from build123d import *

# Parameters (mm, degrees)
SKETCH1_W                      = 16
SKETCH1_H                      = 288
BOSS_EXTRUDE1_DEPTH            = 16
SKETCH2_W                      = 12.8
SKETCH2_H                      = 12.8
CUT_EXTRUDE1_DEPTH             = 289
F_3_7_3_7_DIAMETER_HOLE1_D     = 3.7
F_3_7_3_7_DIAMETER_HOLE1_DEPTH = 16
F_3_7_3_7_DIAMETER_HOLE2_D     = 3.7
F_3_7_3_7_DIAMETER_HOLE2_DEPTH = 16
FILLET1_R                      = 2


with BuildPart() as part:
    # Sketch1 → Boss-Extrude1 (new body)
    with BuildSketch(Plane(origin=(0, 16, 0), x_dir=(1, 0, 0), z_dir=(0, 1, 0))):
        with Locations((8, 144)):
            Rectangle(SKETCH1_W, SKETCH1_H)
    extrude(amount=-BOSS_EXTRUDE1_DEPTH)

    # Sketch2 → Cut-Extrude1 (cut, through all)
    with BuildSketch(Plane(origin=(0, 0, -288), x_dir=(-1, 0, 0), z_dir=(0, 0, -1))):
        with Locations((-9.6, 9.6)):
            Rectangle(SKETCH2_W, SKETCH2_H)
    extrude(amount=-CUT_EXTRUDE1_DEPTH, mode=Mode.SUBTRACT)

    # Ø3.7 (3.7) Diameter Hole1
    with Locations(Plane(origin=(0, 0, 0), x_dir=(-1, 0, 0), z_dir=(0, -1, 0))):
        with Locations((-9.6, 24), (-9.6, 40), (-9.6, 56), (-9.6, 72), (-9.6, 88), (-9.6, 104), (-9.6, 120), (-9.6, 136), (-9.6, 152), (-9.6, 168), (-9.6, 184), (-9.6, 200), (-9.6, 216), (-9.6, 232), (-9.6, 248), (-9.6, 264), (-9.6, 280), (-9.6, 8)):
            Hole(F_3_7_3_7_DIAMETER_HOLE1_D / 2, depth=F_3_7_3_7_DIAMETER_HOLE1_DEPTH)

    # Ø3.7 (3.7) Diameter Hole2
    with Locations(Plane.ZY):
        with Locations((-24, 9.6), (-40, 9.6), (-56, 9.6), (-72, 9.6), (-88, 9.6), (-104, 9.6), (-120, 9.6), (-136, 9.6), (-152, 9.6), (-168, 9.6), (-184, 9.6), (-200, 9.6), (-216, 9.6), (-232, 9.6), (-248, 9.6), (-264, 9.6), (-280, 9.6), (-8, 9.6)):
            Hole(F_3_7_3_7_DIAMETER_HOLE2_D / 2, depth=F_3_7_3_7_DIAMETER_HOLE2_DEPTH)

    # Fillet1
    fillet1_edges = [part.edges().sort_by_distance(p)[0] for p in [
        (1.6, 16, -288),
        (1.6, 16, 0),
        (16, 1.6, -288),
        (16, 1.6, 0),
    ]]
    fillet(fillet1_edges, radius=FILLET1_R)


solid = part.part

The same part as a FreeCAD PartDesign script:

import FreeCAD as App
import Part
import Sketcher
from FreeCAD import Vector


def edges_at(feature, points):
    """Names of the edges that pass closest to the given points."""
    edges = feature.Shape.Edges
    near = lambda p: min(range(len(edges)), key=lambda i: edges[i].distToShape(Part.Vertex(*p))[0])
    return sorted({f"Edge{near(p) + 1}" for p in points})

doc = App.newDocument("Part")
params = doc.addObject("Spreadsheet::Sheet", "Params")
for row, (alias, value) in enumerate([
    ("sketch1_width", "16 mm"),
    ("sketch1_height", "288 mm"),
    ("pad1_length", "16 mm"),
    ("sketch2_width", "12.8 mm"),
    ("sketch3_diameter", "3.7 mm"),
    ("hole_diameter", "3.7 mm"),
    ("hole_depth", "16 mm"),
    ("sketch4_diameter", "3.7 mm"),
    ("hole2_diameter", "3.7 mm"),
    ("hole2_depth", "16 mm"),
    ("fillet_radius", "2 mm"),
], start=1):
    params.set(f"A{row}", alias)
    params.set(f"B{row}", "=" + value)
    params.setAlias(f"B{row}", alias)

body = doc.addObject("PartDesign::Body", "Body")

sketch1 = body.newObject("Sketcher::SketchObject", "Sketch")
sketch1.AttachmentSupport = (doc.getObject("XZ_Plane"), [""])
sketch1.MapMode = "FlatFace"
sketch1.AttachmentOffset = App.Placement(Vector(0, 0, -16), App.Rotation())
sketch1.addGeometry([
    Part.LineSegment(Vector(0, -288, 0), Vector(0, 0, 0)),
    Part.LineSegment(Vector(0, 0, 0), Vector(16, 0, 0)),
    Part.LineSegment(Vector(16, 0, 0), Vector(16, -288, 0)),
    Part.LineSegment(Vector(16, -288, 0), Vector(0, -288, 0)),
], False)
sketch1.addConstraint([
    Sketcher.Constraint("Coincident", 0, 2, 1, 1),
    Sketcher.Constraint("Coincident", 1, 2, 2, 1),
    Sketcher.Constraint("Coincident", 2, 2, 3, 1),
    Sketcher.Constraint("Coincident", 3, 2, 0, 1),
    Sketcher.Constraint("Vertical", 0),
    Sketcher.Constraint("Horizontal", 1),
    Sketcher.Constraint("Vertical", 2),
    Sketcher.Constraint("Horizontal", 3),
    Sketcher.Constraint("Coincident", 0, 2, -1, 1),
    Sketcher.Constraint("DistanceX", 1, 1, 1, 2, 16.0),
    Sketcher.Constraint("DistanceY", 0, 1, 0, 2, 288.0),
])
sketch1.setExpression("Constraints[9]", "Params.sketch1_width")
sketch1.setExpression("Constraints[10]", "Params.sketch1_height")
pad1 = body.newObject("PartDesign::Pad", "Pad")
pad1.Profile = sketch1
pad1.setExpression("Length", "Params.pad1_length")

sketch2 = body.newObject("Sketcher::SketchObject", "Sketch001")
sketch2.AttachmentSupport = (doc.getObject("XY_Plane"), [""])
sketch2.MapMode = "FlatFace"
sketch2.AttachmentOffset = App.Placement(Vector(0, 0, -288), App.Rotation())
sketch2.addGeometry([
    Part.LineSegment(Vector(16, 16, 0), Vector(16, 3, 0)),
    Part.LineSegment(Vector(16, 3, 0), Vector(3, 3, 0)),
    Part.LineSegment(Vector(3, 3, 0), Vector(3, 16, 0)),
    Part.LineSegment(Vector(3, 16, 0), Vector(16, 16, 0)),
], False)
sketch2.addConstraint([
    Sketcher.Constraint("Coincident", 0, 2, 1, 1),
    Sketcher.Constraint("Coincident", 1, 2, 2, 1),
    Sketcher.Constraint("Coincident", 2, 2, 3, 1),
    Sketcher.Constraint("Coincident", 3, 2, 0, 1),
    Sketcher.Constraint("Vertical", 0),
    Sketcher.Constraint("Horizontal", 1),
    Sketcher.Constraint("Vertical", 2),
    Sketcher.Constraint("Horizontal", 3),
    Sketcher.Constraint("Equal", 3, 0),
    Sketcher.Constraint("DistanceX", 1, 2, 1, 1, 12.8),
    Sketcher.Constraint("DistanceX", -1, 1, 0, 2, 16.0),
    Sketcher.Constraint("DistanceY", -1, 1, 2, 2, 16.0),
])
sketch2.setExpression("Constraints[9]", "Params.sketch2_width")
pocket1 = body.newObject("PartDesign::Pocket", "Pocket")
pocket1.Profile = sketch2
pocket1.Type = "ThroughAll"
pocket1.Reversed = True

sketch3 = body.newObject("Sketcher::SketchObject", "Sketch002")
sketch3.AttachmentSupport = (doc.getObject("XZ_Plane"), [""])
sketch3.MapMode = "FlatFace"
sketch3.addGeometry([
    Part.Circle(Vector(9.6, -24, 0), Vector(0, 0, 1), 1.9),
    Part.Circle(Vector(9.6, -40, 0), Vector(0, 0, 1), 1.9),
    Part.Circle(Vector(9.6, -56, 0), Vector(0, 0, 1), 1.9),
    Part.Circle(Vector(9.6, -72, 0), Vector(0, 0, 1), 1.9),
    Part.Circle(Vector(9.6, -88, 0), Vector(0, 0, 1), 1.9),
    Part.Circle(Vector(9.6, -104, 0), Vector(0, 0, 1), 1.9),
    Part.Circle(Vector(9.6, -120, 0), Vector(0, 0, 1), 1.9),
    Part.Circle(Vector(9.6, -136, 0), Vector(0, 0, 1), 1.9),
    Part.Circle(Vector(9.6, -152, 0), Vector(0, 0, 1), 1.9),
    Part.Circle(Vector(9.6, -168, 0), Vector(0, 0, 1), 1.9),
    Part.Circle(Vector(9.6, -184, 0), Vector(0, 0, 1), 1.9),
    Part.Circle(Vector(9.6, -200, 0), Vector(0, 0, 1), 1.9),
    Part.Circle(Vector(9.6, -216, 0), Vector(0, 0, 1), 1.9),
    Part.Circle(Vector(9.6, -232, 0), Vector(0, 0, 1), 1.9),
    Part.Circle(Vector(9.6, -248, 0), Vector(0, 0, 1), 1.9),
    Part.Circle(Vector(9.6, -264, 0), Vector(0, 0, 1), 1.9),
    Part.Circle(Vector(9.6, -280, 0), Vector(0, 0, 1), 1.9),
    Part.Circle(Vector(9.6, -8, 0), Vector(0, 0, 1), 1.9),
], False)
sketch3.addConstraint([
    Sketcher.Constraint("Equal", 0, 1),
    Sketcher.Constraint("Equal", 1, 2),
    Sketcher.Constraint("Equal", 2, 3),
    Sketcher.Constraint("Equal", 3, 4),
    Sketcher.Constraint("Equal", 4, 5),
    Sketcher.Constraint("Equal", 5, 6),
    Sketcher.Constraint("Equal", 6, 7),
    Sketcher.Constraint("Equal", 7, 8),
    Sketcher.Constraint("Equal", 8, 9),
    Sketcher.Constraint("Equal", 9, 10),
    Sketcher.Constraint("Equal", 10, 11),
    Sketcher.Constraint("Equal", 11, 12),
    Sketcher.Constraint("Equal", 12, 13),
    Sketcher.Constraint("Equal", 13, 14),
    Sketcher.Constraint("Equal", 14, 15),
    Sketcher.Constraint("Equal", 15, 16),
    Sketcher.Constraint("Equal", 16, 17),
    Sketcher.Constraint("Vertical", 0, 3, 1, 3),
    Sketcher.Constraint("Vertical", 1, 3, 2, 3),
    Sketcher.Constraint("Vertical", 2, 3, 3, 3),
    Sketcher.Constraint("Vertical", 3, 3, 4, 3),
    Sketcher.Constraint("Vertical", 4, 3, 5, 3),
    Sketcher.Constraint("Vertical", 5, 3, 6, 3),
    Sketcher.Constraint("Vertical", 6, 3, 7, 3),
    Sketcher.Constraint("Vertical", 7, 3, 8, 3),
    Sketcher.Constraint("Vertical", 8, 3, 9, 3),
    Sketcher.Constraint("Vertical", 9, 3, 10, 3),
    Sketcher.Constraint("Vertical", 10, 3, 11, 3),
    Sketcher.Constraint("Vertical", 11, 3, 12, 3),
    Sketcher.Constraint("Vertical", 12, 3, 13, 3),
    Sketcher.Constraint("Vertical", 13, 3, 14, 3),
    Sketcher.Constraint("Vertical", 14, 3, 15, 3),
    Sketcher.Constraint("Vertical", 15, 3, 16, 3),
    Sketcher.Constraint("Vertical", 16, 3, 17, 3),
    Sketcher.Constraint("Diameter", 0, 3.7),
    Sketcher.Constraint("DistanceY", 0, 3, -1, 1, 24.0),
    Sketcher.Constraint("DistanceY", 1, 3, -1, 1, 40.0),
    Sketcher.Constraint("DistanceY", 2, 3, -1, 1, 56.0),
    Sketcher.Constraint("DistanceY", 3, 3, -1, 1, 72.0),
    Sketcher.Constraint("DistanceY", 4, 3, -1, 1, 88.0),
    Sketcher.Constraint("DistanceY", 5, 3, -1, 1, 104.0),
    Sketcher.Constraint("DistanceY", 6, 3, -1, 1, 120.0),
    Sketcher.Constraint("DistanceY", 7, 3, -1, 1, 136.0),
    Sketcher.Constraint("DistanceY", 8, 3, -1, 1, 152.0),
    Sketcher.Constraint("DistanceY", 9, 3, -1, 1, 168.0),
    Sketcher.Constraint("DistanceY", 10, 3, -1, 1, 184.0),
    Sketcher.Constraint("DistanceY", 11, 3, -1, 1, 200.0),
    Sketcher.Constraint("DistanceY", 12, 3, -1, 1, 216.0),
    Sketcher.Constraint("DistanceY", 13, 3, -1, 1, 232.0),
    Sketcher.Constraint("DistanceY", 14, 3, -1, 1, 248.0),
    Sketcher.Constraint("DistanceY", 15, 3, -1, 1, 264.0),
    Sketcher.Constraint("DistanceY", 16, 3, -1, 1, 280.0),
    Sketcher.Constraint("DistanceY", 17, 3, -1, 1, 8.0),
    Sketcher.Constraint("DistanceX", -1, 1, 0, 3, 9.6),
])
sketch3.setExpression("Constraints[34]", "Params.sketch3_diameter")
doc.recompute()
hole = body.newObject("PartDesign::Hole", "Hole")
hole.Profile = sketch3
hole.ThreadType = "None"
hole.setExpression("Diameter", "Params.hole_diameter")
hole.DepthType = "Dimension"
hole.setExpression("Depth", "Params.hole_depth")
hole.DrillPoint = "Flat"

sketch4 = body.newObject("Sketcher::SketchObject", "Sketch003")
sketch4.AttachmentSupport = (doc.getObject("YZ_Plane"), [""])
sketch4.MapMode = "FlatFace"
sketch4.addGeometry([
    Part.Circle(Vector(9.6, -24, 0), Vector(0, 0, 1), 1.9),
    Part.Circle(Vector(9.6, -40, 0), Vector(0, 0, 1), 1.9),
    Part.Circle(Vector(9.6, -56, 0), Vector(0, 0, 1), 1.9),
    Part.Circle(Vector(9.6, -72, 0), Vector(0, 0, 1), 1.9),
    Part.Circle(Vector(9.6, -88, 0), Vector(0, 0, 1), 1.9),
    Part.Circle(Vector(9.6, -104, 0), Vector(0, 0, 1), 1.9),
    Part.Circle(Vector(9.6, -120, 0), Vector(0, 0, 1), 1.9),
    Part.Circle(Vector(9.6, -136, 0), Vector(0, 0, 1), 1.9),
    Part.Circle(Vector(9.6, -152, 0), Vector(0, 0, 1), 1.9),
    Part.Circle(Vector(9.6, -168, 0), Vector(0, 0, 1), 1.9),
    Part.Circle(Vector(9.6, -184, 0), Vector(0, 0, 1), 1.9),
    Part.Circle(Vector(9.6, -200, 0), Vector(0, 0, 1), 1.9),
    Part.Circle(Vector(9.6, -216, 0), Vector(0, 0, 1), 1.9),
    Part.Circle(Vector(9.6, -232, 0), Vector(0, 0, 1), 1.9),
    Part.Circle(Vector(9.6, -248, 0), Vector(0, 0, 1), 1.9),
    Part.Circle(Vector(9.6, -264, 0), Vector(0, 0, 1), 1.9),
    Part.Circle(Vector(9.6, -280, 0), Vector(0, 0, 1), 1.9),
    Part.Circle(Vector(9.6, -8, 0), Vector(0, 0, 1), 1.9),
], False)
sketch4.addConstraint([
    Sketcher.Constraint("Equal", 0, 1),
    Sketcher.Constraint("Equal", 1, 2),
    Sketcher.Constraint("Equal", 2, 3),
    Sketcher.Constraint("Equal", 3, 4),
    Sketcher.Constraint("Equal", 4, 5),
    Sketcher.Constraint("Equal", 5, 6),
    Sketcher.Constraint("Equal", 6, 7),
    Sketcher.Constraint("Equal", 7, 8),
    Sketcher.Constraint("Equal", 8, 9),
    Sketcher.Constraint("Equal", 9, 10),
    Sketcher.Constraint("Equal", 10, 11),
    Sketcher.Constraint("Equal", 11, 12),
    Sketcher.Constraint("Equal", 12, 13),
    Sketcher.Constraint("Equal", 13, 14),
    Sketcher.Constraint("Equal", 14, 15),
    Sketcher.Constraint("Equal", 15, 16),
    Sketcher.Constraint("Equal", 16, 17),
    Sketcher.Constraint("Vertical", 0, 3, 1, 3),
    Sketcher.Constraint("Vertical", 1, 3, 2, 3),
    Sketcher.Constraint("Vertical", 2, 3, 3, 3),
    Sketcher.Constraint("Vertical", 3, 3, 4, 3),
    Sketcher.Constraint("Vertical", 4, 3, 5, 3),
    Sketcher.Constraint("Vertical", 5, 3, 6, 3),
    Sketcher.Constraint("Vertical", 6, 3, 7, 3),
    Sketcher.Constraint("Vertical", 7, 3, 8, 3),
    Sketcher.Constraint("Vertical", 8, 3, 9, 3),
    Sketcher.Constraint("Vertical", 9, 3, 10, 3),
    Sketcher.Constraint("Vertical", 10, 3, 11, 3),
    Sketcher.Constraint("Vertical", 11, 3, 12, 3),
    Sketcher.Constraint("Vertical", 12, 3, 13, 3),
    Sketcher.Constraint("Vertical", 13, 3, 14, 3),
    Sketcher.Constraint("Vertical", 14, 3, 15, 3),
    Sketcher.Constraint("Vertical", 15, 3, 16, 3),
    Sketcher.Constraint("Vertical", 16, 3, 17, 3),
    Sketcher.Constraint("Diameter", 0, 3.7),
    Sketcher.Constraint("DistanceY", 0, 3, -1, 1, 24.0),
    Sketcher.Constraint("DistanceY", 1, 3, -1, 1, 40.0),
    Sketcher.Constraint("DistanceY", 2, 3, -1, 1, 56.0),
    Sketcher.Constraint("DistanceY", 3, 3, -1, 1, 72.0),
    Sketcher.Constraint("DistanceY", 4, 3, -1, 1, 88.0),
    Sketcher.Constraint("DistanceY", 5, 3, -1, 1, 104.0),
    Sketcher.Constraint("DistanceY", 6, 3, -1, 1, 120.0),
    Sketcher.Constraint("DistanceY", 7, 3, -1, 1, 136.0),
    Sketcher.Constraint("DistanceY", 8, 3, -1, 1, 152.0),
    Sketcher.Constraint("DistanceY", 9, 3, -1, 1, 168.0),
    Sketcher.Constraint("DistanceY", 10, 3, -1, 1, 184.0),
    Sketcher.Constraint("DistanceY", 11, 3, -1, 1, 200.0),
    Sketcher.Constraint("DistanceY", 12, 3, -1, 1, 216.0),
    Sketcher.Constraint("DistanceY", 13, 3, -1, 1, 232.0),
    Sketcher.Constraint("DistanceY", 14, 3, -1, 1, 248.0),
    Sketcher.Constraint("DistanceY", 15, 3, -1, 1, 264.0),
    Sketcher.Constraint("DistanceY", 16, 3, -1, 1, 280.0),
    Sketcher.Constraint("DistanceY", 17, 3, -1, 1, 8.0),
    Sketcher.Constraint("DistanceX", -1, 1, 0, 3, 9.6),
])
sketch4.setExpression("Constraints[34]", "Params.sketch4_diameter")
doc.recompute()
hole2 = body.newObject("PartDesign::Hole", "Hole001")
hole2.Profile = sketch4
hole2.ThreadType = "None"
hole2.setExpression("Diameter", "Params.hole2_diameter")
hole2.DepthType = "Dimension"
hole2.setExpression("Depth", "Params.hole2_depth")
hole2.DrillPoint = "Flat"
hole2.Reversed = True
doc.recompute()

fillet = body.newObject("PartDesign::Fillet", "Fillet")
fillet.Base = (hole2, edges_at(hole2, [
    (1.6, 16, -288),
    (1.6, 16, 0),
    (16, 1.6, -288),
    (16, 1.6, 0),
]))
fillet.setExpression("Radius", "Params.fillet_radius")

doc.recompute()
